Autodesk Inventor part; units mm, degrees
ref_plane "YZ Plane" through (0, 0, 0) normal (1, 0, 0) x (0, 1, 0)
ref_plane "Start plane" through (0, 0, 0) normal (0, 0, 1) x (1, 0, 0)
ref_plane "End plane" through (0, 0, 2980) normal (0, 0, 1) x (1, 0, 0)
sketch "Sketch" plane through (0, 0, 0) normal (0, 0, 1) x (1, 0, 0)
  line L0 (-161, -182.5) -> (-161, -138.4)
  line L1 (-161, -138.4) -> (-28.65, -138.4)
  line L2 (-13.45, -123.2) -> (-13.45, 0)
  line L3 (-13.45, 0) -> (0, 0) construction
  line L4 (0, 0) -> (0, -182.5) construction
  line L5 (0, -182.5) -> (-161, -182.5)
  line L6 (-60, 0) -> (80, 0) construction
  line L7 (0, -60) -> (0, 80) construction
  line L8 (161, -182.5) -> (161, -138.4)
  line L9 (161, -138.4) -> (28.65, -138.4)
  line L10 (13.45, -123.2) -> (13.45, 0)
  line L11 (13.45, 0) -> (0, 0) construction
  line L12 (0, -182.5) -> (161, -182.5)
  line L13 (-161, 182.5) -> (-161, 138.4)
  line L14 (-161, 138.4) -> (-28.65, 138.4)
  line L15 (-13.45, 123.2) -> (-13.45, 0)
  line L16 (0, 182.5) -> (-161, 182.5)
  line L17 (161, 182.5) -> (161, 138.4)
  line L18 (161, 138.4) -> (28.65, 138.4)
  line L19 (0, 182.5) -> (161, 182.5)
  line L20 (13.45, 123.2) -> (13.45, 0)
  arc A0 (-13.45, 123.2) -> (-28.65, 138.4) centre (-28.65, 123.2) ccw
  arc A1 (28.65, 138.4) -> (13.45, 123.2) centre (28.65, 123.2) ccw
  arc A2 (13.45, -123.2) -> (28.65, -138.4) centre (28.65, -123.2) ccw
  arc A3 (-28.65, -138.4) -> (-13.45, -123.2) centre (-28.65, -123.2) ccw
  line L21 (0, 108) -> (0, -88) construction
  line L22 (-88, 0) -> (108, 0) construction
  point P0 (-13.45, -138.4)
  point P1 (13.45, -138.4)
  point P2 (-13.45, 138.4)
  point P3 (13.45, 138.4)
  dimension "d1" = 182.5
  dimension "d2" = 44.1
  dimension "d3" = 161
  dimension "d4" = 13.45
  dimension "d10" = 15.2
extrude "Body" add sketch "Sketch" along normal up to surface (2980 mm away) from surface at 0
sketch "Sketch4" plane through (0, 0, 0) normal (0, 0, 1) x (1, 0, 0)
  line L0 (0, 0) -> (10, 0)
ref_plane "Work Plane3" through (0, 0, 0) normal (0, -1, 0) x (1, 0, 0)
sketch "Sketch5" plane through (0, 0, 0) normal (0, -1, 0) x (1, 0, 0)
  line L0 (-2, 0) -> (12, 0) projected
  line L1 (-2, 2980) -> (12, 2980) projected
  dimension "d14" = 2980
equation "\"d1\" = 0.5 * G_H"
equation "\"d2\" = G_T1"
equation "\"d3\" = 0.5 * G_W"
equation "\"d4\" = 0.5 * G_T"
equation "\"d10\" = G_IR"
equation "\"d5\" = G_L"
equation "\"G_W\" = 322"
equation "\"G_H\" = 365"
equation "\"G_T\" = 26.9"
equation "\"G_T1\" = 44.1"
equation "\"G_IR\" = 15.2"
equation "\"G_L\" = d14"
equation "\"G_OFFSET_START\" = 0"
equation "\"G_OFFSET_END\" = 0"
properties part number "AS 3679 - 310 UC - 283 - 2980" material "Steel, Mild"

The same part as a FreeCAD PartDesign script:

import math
import FreeCAD as App
import Part
import Sketcher

V = App.Vector

doc = App.newDocument("Part")
body = doc.addObject("PartDesign::Body", "Body")

# Sketch on XY plane
sketch1 = body.newObject("Sketcher::SketchObject", "Sketch")
sketch1.AttachmentSupport = (doc.getObject("XY_Plane"), [""])
sketch1.MapMode = "FlatFace"
sketch1.addGeometry([
    Part.LineSegment(V(-161, -138.4, 0), V(-161, -182.5, 0)),  # 0
    Part.LineSegment(V(-161, -182.5, 0), V(161, -182.5, 0)),  # 1
    Part.LineSegment(V(161, -182.5, 0), V(161, -138.4, 0)),  # 2
    Part.LineSegment(V(161, -138.4, 0), V(28.65, -138.4, 0)),  # 3
    Part.ArcOfCircle(Part.Circle(V(28.65, -123.2, 0), V(0, 0, 1), 15.2), math.radians(180), math.radians(270)),  # 4
    Part.LineSegment(V(13.45, -123.2, 0), V(13.45, 123.2, 0)),  # 5
    Part.ArcOfCircle(Part.Circle(V(28.65, 123.2, 0), V(0, 0, 1), 15.2), math.radians(90), math.radians(180)),  # 6
    Part.LineSegment(V(28.65, 138.4, 0), V(161, 138.4, 0)),  # 7
    Part.LineSegment(V(161, 138.4, 0), V(161, 182.5, 0)),  # 8
    Part.LineSegment(V(161, 182.5, 0), V(-161, 182.5, 0)),  # 9
    Part.LineSegment(V(-161, 182.5, 0), V(-161, 138.4, 0)),  # 10
    Part.LineSegment(V(-161, 138.4, 0), V(-28.65, 138.4, 0)),  # 11
    Part.ArcOfCircle(Part.Circle(V(-28.65, 123.2, 0), V(0, 0, 1), 15.2), math.radians(0), math.radians(90)),  # 12
    Part.LineSegment(V(-13.45, 123.2, 0), V(-13.45, -123.2, 0)),  # 13
    Part.ArcOfCircle(Part.Circle(V(-28.65, -123.2, 0), V(0, 0, 1), 15.2), math.radians(-90), math.radians(0)),  # 14
    Part.LineSegment(V(-28.65, -138.4, 0), V(-161, -138.4, 0)),  # 15
], False)
sketch1.addConstraint([
    Sketcher.Constraint("Coincident", 0, 2, 1, 1),
    Sketcher.Constraint("Coincident", 1, 2, 2, 1),
    Sketcher.Constraint("Coincident", 2, 2, 3, 1),
    Sketcher.Constraint("Tangent", 3, 2, 4, 2),
    Sketcher.Constraint("Tangent", 4, 1, 5, 1),
    Sketcher.Constraint("Tangent", 5, 2, 6, 2),
    Sketcher.Constraint("Tangent", 6, 1, 7, 1),
    Sketcher.Constraint("Coincident", 7, 2, 8, 1),
    Sketcher.Constraint("Coincident", 8, 2, 9, 1),
    Sketcher.Constraint("Coincident", 9, 2, 10, 1),
    Sketcher.Constraint("Coincident", 10, 2, 11, 1),
    Sketcher.Constraint("Tangent", 11, 2, 12, 2),
    Sketcher.Constraint("Tangent", 12, 1, 13, 1),
    Sketcher.Constraint("Tangent", 13, 2, 14, 2),
    Sketcher.Constraint("Tangent", 14, 1, 15, 1),
    Sketcher.Constraint("Coincident", 15, 2, 0, 1),
    Sketcher.Constraint("Vertical", 0),
    Sketcher.Constraint("Horizontal", 1),
    Sketcher.Constraint("Vertical", 2),
    Sketcher.Constraint("Horizontal", 3),
    Sketcher.Constraint("Vertical", 5),
    Sketcher.Constraint("Horizontal", 7),
    Sketcher.Constraint("Vertical", 8),
    Sketcher.Constraint("Horizontal", 9),
    Sketcher.Constraint("Vertical", 10),
    Sketcher.Constraint("Horizontal", 11),
    Sketcher.Constraint("Vertical", 13),
    Sketcher.Constraint("Horizontal", 15),
    Sketcher.Constraint("Equal", 4, 6),
    Sketcher.Constraint("Equal", 6, 12),
    Sketcher.Constraint("Equal", 12, 14),
    Sketcher.Constraint("Symmetric", 4, 3, 12, 3, -1, 1),
    Sketcher.Constraint("Symmetric", 0, 2, 8, 2, -1, 1),
    Sketcher.Constraint("Symmetric", 7, 2, 10, 2, -2),
    Sketcher.Constraint("Symmetric", 2, 2, 15, 2, -2),
    Sketcher.Constraint("Radius", 4, 15.2),
    Sketcher.Constraint("DistanceY", 0, 2, 0, 1, 44.1),
    Sketcher.Constraint("DistanceX", 0, 2, -1, 1, 161.0),
    Sketcher.Constraint("DistanceY", 0, 2, -1, 1, 182.5),
    Sketcher.Constraint("DistanceX", -1, 1, 4, 1, 13.45),
])
pad1 = body.newObject("PartDesign::Pad", "Pad")
pad1.Profile = sketch1
pad1.Length = 2980

doc.recompute()
